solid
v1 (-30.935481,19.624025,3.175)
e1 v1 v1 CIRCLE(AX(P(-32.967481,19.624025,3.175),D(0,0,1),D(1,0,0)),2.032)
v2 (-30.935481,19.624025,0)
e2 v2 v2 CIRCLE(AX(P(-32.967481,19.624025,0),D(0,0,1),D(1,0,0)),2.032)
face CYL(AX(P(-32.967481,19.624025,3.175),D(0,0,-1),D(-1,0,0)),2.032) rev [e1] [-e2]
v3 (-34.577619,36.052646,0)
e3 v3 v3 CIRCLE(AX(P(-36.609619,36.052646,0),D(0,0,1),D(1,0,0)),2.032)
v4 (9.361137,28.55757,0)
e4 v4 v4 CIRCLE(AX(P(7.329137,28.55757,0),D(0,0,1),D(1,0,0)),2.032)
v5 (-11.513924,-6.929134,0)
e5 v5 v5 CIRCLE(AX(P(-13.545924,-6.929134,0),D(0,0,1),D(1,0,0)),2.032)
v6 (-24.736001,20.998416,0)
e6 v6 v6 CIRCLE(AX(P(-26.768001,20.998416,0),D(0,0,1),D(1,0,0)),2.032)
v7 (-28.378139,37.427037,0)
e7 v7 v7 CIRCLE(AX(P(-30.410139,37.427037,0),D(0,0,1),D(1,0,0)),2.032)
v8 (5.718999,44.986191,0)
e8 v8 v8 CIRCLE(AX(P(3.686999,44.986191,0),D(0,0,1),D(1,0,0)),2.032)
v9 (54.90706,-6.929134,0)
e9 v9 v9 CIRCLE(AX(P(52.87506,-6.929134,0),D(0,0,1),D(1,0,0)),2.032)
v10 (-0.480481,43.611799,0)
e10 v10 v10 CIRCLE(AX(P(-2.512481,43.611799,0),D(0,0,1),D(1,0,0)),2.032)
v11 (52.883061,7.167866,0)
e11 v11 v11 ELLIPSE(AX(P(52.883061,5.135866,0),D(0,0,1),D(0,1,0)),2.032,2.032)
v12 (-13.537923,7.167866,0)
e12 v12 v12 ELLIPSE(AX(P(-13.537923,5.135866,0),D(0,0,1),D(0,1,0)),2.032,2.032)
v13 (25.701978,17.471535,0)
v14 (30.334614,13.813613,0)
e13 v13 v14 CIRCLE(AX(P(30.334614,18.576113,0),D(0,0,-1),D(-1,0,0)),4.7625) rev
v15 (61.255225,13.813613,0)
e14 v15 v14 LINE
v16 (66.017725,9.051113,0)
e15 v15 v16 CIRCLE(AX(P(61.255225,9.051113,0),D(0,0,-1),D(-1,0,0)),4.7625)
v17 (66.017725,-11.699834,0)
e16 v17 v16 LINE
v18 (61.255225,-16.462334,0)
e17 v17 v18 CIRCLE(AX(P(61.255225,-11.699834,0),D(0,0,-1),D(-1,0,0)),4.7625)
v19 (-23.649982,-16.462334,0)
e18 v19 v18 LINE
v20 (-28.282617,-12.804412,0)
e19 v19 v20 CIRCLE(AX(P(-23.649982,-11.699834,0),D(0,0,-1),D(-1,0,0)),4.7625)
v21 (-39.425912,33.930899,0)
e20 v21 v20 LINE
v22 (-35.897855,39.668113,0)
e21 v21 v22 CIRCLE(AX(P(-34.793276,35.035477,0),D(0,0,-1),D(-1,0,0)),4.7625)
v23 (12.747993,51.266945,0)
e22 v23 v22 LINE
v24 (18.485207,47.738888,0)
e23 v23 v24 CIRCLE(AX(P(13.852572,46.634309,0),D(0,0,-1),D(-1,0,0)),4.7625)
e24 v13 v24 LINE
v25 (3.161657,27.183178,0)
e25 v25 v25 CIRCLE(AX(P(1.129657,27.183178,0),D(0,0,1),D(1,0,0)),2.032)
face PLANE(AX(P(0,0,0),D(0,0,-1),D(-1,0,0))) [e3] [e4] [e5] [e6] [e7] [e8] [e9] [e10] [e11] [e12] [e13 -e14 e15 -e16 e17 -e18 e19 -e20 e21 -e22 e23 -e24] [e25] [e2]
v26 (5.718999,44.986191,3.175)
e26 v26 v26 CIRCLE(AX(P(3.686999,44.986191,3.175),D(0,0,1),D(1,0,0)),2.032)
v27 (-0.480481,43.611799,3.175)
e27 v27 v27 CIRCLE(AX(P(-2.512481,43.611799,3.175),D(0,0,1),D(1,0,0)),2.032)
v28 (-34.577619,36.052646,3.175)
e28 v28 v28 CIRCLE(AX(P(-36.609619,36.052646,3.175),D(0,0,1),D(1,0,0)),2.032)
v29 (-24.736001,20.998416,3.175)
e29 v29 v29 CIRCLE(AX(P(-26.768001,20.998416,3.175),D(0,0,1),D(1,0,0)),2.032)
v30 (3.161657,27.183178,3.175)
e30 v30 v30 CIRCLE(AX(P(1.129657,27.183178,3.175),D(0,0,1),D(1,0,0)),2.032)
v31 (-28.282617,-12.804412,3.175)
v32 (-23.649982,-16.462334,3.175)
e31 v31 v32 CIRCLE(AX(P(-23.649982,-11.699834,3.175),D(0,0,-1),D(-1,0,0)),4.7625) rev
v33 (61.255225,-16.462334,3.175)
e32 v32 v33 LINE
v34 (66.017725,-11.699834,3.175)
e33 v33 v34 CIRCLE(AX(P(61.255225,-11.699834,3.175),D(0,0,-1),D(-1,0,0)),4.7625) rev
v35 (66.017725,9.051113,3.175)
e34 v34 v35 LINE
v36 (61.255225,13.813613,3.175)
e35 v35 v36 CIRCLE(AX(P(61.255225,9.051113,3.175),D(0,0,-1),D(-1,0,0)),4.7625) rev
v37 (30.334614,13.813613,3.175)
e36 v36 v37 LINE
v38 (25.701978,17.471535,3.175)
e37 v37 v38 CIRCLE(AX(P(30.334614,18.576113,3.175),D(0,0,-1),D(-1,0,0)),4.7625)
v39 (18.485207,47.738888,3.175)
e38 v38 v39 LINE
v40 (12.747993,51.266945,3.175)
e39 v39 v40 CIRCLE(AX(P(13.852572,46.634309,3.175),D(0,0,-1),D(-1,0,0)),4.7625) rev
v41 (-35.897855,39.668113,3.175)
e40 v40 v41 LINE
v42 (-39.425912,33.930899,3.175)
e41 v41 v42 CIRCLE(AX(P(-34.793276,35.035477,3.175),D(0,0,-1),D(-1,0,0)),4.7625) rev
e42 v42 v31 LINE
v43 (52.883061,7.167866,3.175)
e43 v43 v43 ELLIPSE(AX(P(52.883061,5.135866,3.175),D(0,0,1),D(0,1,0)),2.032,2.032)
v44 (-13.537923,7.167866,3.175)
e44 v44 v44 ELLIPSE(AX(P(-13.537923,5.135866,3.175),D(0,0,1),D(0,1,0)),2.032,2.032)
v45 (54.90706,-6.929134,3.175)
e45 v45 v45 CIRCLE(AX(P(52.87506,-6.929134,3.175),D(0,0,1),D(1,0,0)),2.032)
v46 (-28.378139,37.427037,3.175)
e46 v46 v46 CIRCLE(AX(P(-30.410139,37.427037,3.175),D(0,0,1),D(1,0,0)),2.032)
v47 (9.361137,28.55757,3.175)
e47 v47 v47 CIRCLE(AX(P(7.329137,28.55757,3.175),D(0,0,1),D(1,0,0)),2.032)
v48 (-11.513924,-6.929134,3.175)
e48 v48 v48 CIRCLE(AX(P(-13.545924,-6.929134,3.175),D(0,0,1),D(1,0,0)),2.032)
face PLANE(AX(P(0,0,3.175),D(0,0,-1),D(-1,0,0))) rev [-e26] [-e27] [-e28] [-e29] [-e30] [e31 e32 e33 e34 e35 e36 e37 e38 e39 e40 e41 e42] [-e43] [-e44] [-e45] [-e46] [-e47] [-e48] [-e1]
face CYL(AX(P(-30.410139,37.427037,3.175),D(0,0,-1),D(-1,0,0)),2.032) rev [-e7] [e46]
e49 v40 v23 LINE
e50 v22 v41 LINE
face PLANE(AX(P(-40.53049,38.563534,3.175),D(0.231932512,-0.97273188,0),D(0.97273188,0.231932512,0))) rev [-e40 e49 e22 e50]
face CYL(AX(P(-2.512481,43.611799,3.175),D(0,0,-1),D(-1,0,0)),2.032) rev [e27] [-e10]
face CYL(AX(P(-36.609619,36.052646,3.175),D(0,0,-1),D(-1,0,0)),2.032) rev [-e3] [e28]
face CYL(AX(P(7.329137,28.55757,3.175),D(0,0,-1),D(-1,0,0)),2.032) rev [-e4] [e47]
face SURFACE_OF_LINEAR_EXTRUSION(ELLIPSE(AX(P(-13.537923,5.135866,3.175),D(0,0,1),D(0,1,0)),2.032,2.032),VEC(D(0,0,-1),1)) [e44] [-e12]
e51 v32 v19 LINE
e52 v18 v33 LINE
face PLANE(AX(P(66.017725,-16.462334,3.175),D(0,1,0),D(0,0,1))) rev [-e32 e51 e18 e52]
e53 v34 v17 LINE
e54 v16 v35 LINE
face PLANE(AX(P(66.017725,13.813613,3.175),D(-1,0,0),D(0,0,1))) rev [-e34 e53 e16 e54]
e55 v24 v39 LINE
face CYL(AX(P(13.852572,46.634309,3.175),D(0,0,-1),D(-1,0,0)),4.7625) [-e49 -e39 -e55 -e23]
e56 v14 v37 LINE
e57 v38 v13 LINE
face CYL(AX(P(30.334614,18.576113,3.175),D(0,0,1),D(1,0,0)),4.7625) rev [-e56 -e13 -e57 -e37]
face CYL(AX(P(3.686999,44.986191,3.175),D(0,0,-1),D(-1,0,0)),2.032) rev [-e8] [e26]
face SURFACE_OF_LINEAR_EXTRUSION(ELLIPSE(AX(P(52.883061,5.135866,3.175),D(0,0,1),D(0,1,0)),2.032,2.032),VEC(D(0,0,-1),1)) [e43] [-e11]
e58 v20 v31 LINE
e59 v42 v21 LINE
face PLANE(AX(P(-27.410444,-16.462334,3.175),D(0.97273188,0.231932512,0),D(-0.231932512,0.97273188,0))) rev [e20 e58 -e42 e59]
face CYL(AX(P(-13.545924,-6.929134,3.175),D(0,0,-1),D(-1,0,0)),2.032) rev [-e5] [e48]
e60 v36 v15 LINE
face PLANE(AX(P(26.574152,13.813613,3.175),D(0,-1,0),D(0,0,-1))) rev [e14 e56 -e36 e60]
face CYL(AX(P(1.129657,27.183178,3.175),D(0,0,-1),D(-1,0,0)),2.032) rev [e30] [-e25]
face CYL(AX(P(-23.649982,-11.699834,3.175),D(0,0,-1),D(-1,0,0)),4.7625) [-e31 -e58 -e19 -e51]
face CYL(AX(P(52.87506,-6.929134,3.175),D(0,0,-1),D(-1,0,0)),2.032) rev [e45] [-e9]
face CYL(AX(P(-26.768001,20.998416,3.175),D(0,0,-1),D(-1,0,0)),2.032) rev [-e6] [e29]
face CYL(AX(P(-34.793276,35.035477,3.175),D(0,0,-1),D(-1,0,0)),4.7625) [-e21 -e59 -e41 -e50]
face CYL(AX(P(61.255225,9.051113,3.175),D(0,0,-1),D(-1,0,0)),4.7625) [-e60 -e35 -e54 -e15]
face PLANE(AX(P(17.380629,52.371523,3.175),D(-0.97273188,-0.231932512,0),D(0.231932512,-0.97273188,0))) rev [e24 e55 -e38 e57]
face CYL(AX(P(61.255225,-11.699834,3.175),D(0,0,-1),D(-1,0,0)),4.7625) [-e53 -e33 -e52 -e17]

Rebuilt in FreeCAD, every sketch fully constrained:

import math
import FreeCAD as App
import Part
import Sketcher
from FreeCAD import Vector
Q = App.Units.Quantity


def edges_at(feature, points):
    """Names of the edges that pass closest to the given points."""
    edges = feature.Shape.Edges
    near = lambda p: min(range(len(edges)), key=lambda i: edges[i].distToShape(Part.Vertex(*p))[0])
    return sorted({f"Edge{near(p) + 1}" for p in points})

doc = App.newDocument("Part")
params = doc.addObject("Spreadsheet::Sheet", "Params")
for row, (alias, value) in enumerate([
    ("sketch1_diameter", "0.16 in"),
    ("pad1_length", "0.125 in"),
    ("fillet_radius", "0.1875 in"),
], start=1):
    params.set(f"A{row}", alias)
    params.set(f"B{row}", "=" + value)
    params.setAlias(f"B{row}", alias)

body = doc.addObject("PartDesign::Body", "Body")

sketch1 = body.newObject("Sketcher::SketchObject", "Sketch")
sketch1.AttachmentSupport = (doc.getObject("XY_Plane"), [""])
sketch1.MapMode = "FlatFace"
sketch1.addGeometry([
    Part.LineSegment(Vector(17.380629, 52.371523, 0), Vector(-40.53049, 38.563534, 0)),
    Part.LineSegment(Vector(-40.53049, 38.563534, 0), Vector(-27.410444, -16.462334, 0)),
    Part.LineSegment(Vector(-27.410444, -16.462334, 0), Vector(66.017725, -16.462334, 0)),
    Part.LineSegment(Vector(66.017725, -16.462334, 0), Vector(66.017725, 13.813613, 0)),
    Part.LineSegment(Vector(66.017725, 13.813613, 0), Vector(26.574152, 13.813613, 0)),
    Part.LineSegment(Vector(26.574152, 13.813613, 0), Vector(17.380629, 52.371523, 0)),
    Part.Circle(Vector(52.87506, -6.929134, 0), Vector(0, 0, 1), 2.032),
    Part.Ellipse(Vector(52.883061, 7.167866, 0), Vector(50.851062, 5.135866, 0), Vector(52.883061, 5.135866, 0)),
    Part.Circle(Vector(-13.545924, -6.929134, 0), Vector(0, 0, 1), 2.032),
    Part.Ellipse(Vector(-13.537923, 7.167866, 0), Vector(-15.569922, 5.135866, 0), Vector(-13.537923, 5.135866, 0)),
    Part.ArcOfCircle(Part.Circle(Vector(7.329137, 28.55757, 0), Vector(0, 0, 1), 2.032), math.radians(59.067463), math.radians(325.932537)),
    Part.ArcOfCircle(Part.Circle(Vector(7.329137, 28.55757, 0), Vector(0, 0, 1), 2.032), math.radians(-34.067463), math.radians(59.067463)),
    Part.ArcOfCircle(Part.Circle(Vector(1.129657, 27.183178, 0), Vector(0, 0, 1), 2.032), math.radians(145.932537), math.radians(239.067463)),
    Part.ArcOfCircle(Part.Circle(Vector(1.129657, 27.183178, 0), Vector(0, 0, 1), 2.032), math.radians(-120.932537), math.radians(145.932537)),
    Part.ArcOfCircle(Part.Circle(Vector(-26.768001, 20.998416, 0), Vector(0, 0, 1), 2.032), math.radians(59.067463), math.radians(325.932537)),
    Part.ArcOfCircle(Part.Circle(Vector(-26.768001, 20.998416, 0), Vector(0, 0, 1), 2.032), math.radians(-34.067463), math.radians(59.067463)),
    Part.Circle(Vector(-32.967481, 19.624025, 0), Vector(0, 0, 1), 2.032),
    Part.ArcOfCircle(Part.Circle(Vector(3.686999, 44.986191, 0), Vector(0, 0, 1), 2.032), math.radians(59.067463), math.radians(325.932537)),
    Part.ArcOfCircle(Part.Circle(Vector(3.686999, 44.986191, 0), Vector(0, 0, 1), 2.032), math.radians(-34.067463), math.radians(59.067463)),
    Part.ArcOfCircle(Part.Circle(Vector(-2.512481, 43.611799, 0), Vector(0, 0, 1), 2.032), math.radians(145.932537), math.radians(239.067463)),
    Part.ArcOfCircle(Part.Circle(Vector(-2.512481, 43.611799, 0), Vector(0, 0, 1), 2.032), math.radians(-120.932537), math.radians(145.932537)),
    Part.Circle(Vector(-36.609619, 36.052646, 0), Vector(0, 0, 1), 2.032),
    Part.Circle(Vector(-30.410139, 37.427037, 0), Vector(0, 0, 1), 2.032),
], False)
sketch1.addConstraint([
    Sketcher.Constraint("Block", 7),
    Sketcher.Constraint("Block", 9),
    Sketcher.Constraint("Coincident", 0, 2, 1, 1),
    Sketcher.Constraint("Coincident", 1, 2, 2, 1),
    Sketcher.Constraint("Coincident", 2, 2, 3, 1),
    Sketcher.Constraint("Coincident", 3, 2, 4, 1),
    Sketcher.Constraint("Coincident", 4, 2, 5, 1),
    Sketcher.Constraint("Coincident", 5, 2, 0, 1),
    Sketcher.Constraint("Tangent", 10, 1, 11, 2),
    Sketcher.Constraint("Coincident", 11, 1, 10, 2),
    Sketcher.Constraint("Tangent", 12, 1, 13, 2),
    Sketcher.Constraint("Coincident", 13, 1, 12, 2),
    Sketcher.Constraint("Tangent", 14, 1, 15, 2),
    Sketcher.Constraint("Coincident", 15, 1, 14, 2),
    Sketcher.Constraint("Tangent", 17, 1, 18, 2),
    Sketcher.Constraint("Coincident", 18, 1, 17, 2),
    Sketcher.Constraint("Tangent", 19, 1, 20, 2),
    Sketcher.Constraint("Coincident", 20, 1, 19, 2),
    Sketcher.Constraint("Horizontal", 2),
    Sketcher.Constraint("Vertical", 3),
    Sketcher.Constraint("Horizontal", 4),
    Sketcher.Constraint("Equal", 6, 8),
    Sketcher.Constraint("Equal", 8, 10),
    Sketcher.Constraint("Equal", 11, 12),
    Sketcher.Constraint("Equal", 13, 14),
    Sketcher.Constraint("Equal", 15, 16),
    Sketcher.Constraint("Equal", 16, 17),
    Sketcher.Constraint("Equal", 18, 19),
    Sketcher.Constraint("Equal", 20, 21),
    Sketcher.Constraint("Equal", 21, 22),
    Sketcher.Constraint("Perpendicular", 0, 1),
    Sketcher.Constraint("Parallel", 1, 5),
    Sketcher.Constraint("Horizontal", 6, 3, 8, 3),
    Sketcher.Constraint("Diameter", 6, Q("0.16 in")),
    Sketcher.Constraint("DistanceY", -1, 1, 19, 3, Q("1.717 in")),
    Sketcher.Constraint("DistanceY", 8, 3, 16, 3, Q("1.0454 in")),
    Sketcher.Constraint("DistanceX", 2, 1, 2, 2, Q("93.428169 mm")),
    Sketcher.Constraint("DistanceX", 14, 3, -1, 1, Q("26.768001 mm")),
    Sketcher.Constraint("DistanceX", -1, 1, 17, 3, Q("3.686999 mm")),
    Sketcher.Constraint("DistanceX", -1, 1, 11, 1, Q("9.012402 mm")),
    Sketcher.Constraint("DistanceY", 1, 2, 8, 3, Q("9.533199 mm")),
    Sketcher.Constraint("DistanceX", 1, 2, 12, 3, Q("28.540101 mm")),
    Sketcher.Constraint("Distance", 1, Q("56.568381 mm")),
    Sketcher.Constraint("DistanceX", 4, 2, 4, 1, Q("39.443573 mm")),
    Sketcher.Constraint("DistanceY", 3, 1, 3, 2, Q("30.275947 mm")),
    Sketcher.Constraint("DistanceX", -1, 1, 6, 3, Q("52.87506 mm")),
    Sketcher.Constraint("DistanceY", -1, 1, 10, 3, Q("28.55757 mm")),
    Sketcher.Constraint("DistanceY", -1, 1, 12, 3, Q("27.183178 mm")),
    Sketcher.Constraint("DistanceX", 16, 3, -1, 1, Q("32.967481 mm")),
    Sketcher.Constraint("DistanceY", -1, 1, 17, 3, Q("44.986191 mm")),
    Sketcher.Constraint("DistanceX", 19, 3, -1, 1, Q("2.512481 mm")),
    Sketcher.Constraint("DistanceX", 21, 3, -1, 1, Q("36.609619 mm")),
    Sketcher.Constraint("DistanceX", 22, 3, -1, 1, Q("30.410139 mm")),
    Sketcher.Constraint("DistanceX", 0, 2, -1, 1, Q("40.53049 mm")),
    Sketcher.Constraint("DistanceX", -1, 1, 4, 2, Q("26.574152 mm")),
    Sketcher.Constraint("DistanceX", 12, 1, -1, 1, Q("0.553608 mm")),
    Sketcher.Constraint("DistanceX", -1, 1, 13, 1, Q("0.085151 mm")),
    Sketcher.Constraint("DistanceY", -1, 1, 14, 1, Q("22.741411 mm")),
    Sketcher.Constraint("DistanceY", -1, 1, 18, 1, Q("43.847928 mm")),
    Sketcher.Constraint("DistanceX", 8, 3, 10, 3, Q("20.87506 mm")),
    Sketcher.Constraint("DistanceX", 12, 3, 10, 3, Q("6.19948 mm")),
    Sketcher.Constraint("DistanceY", 14, 3, 12, 3, Q("6.184762 mm")),
    Sketcher.Constraint("DistanceY", 8, 3, 14, 3, Q("27.927551 mm")),
    Sketcher.Constraint("DistanceY", 16, 3, 21, 3, Q("16.428621 mm")),
    Sketcher.Constraint("DistanceY", 21, 3, 22, 3, Q("1.374392 mm")),
    Sketcher.Constraint("DistanceX", 10, 1, 11, 1, Q("0.638759 mm")),
    Sketcher.Constraint("DistanceX", 14, 1, 15, 1, Q("0.638759 mm")),
    Sketcher.Constraint("DistanceX", 17, 1, 18, 1, Q("0.638759 mm")),
    Sketcher.Constraint("DistanceY", 19, 1, 17, 3, Q("0.236129 mm")),
    Sketcher.Constraint("DistanceX", 19, 1, 20, 1, Q("0.638759 mm")),
])
sketch1.setExpression("Constraints[33]", "Params.sketch1_diameter")
pad1 = body.newObject("PartDesign::Pad", "Pad")
pad1.Profile = sketch1
pad1.setExpression("Length", "Params.pad1_length")
doc.recompute()

fillet = body.newObject("PartDesign::Fillet", "Fillet")
fillet.Base = (pad1, edges_at(pad1, [
    (-40.53, 38.564, 1.587),
    (17.381, 52.372, 1.587),
    (26.574, 13.814, 1.587),
    (66.018, 13.814, 1.587),
    (66.018, -16.462, 1.587),
    (-27.41, -16.462, 1.587),
]))
fillet.setExpression("Radius", "Params.fillet_radius")

doc.recompute()
